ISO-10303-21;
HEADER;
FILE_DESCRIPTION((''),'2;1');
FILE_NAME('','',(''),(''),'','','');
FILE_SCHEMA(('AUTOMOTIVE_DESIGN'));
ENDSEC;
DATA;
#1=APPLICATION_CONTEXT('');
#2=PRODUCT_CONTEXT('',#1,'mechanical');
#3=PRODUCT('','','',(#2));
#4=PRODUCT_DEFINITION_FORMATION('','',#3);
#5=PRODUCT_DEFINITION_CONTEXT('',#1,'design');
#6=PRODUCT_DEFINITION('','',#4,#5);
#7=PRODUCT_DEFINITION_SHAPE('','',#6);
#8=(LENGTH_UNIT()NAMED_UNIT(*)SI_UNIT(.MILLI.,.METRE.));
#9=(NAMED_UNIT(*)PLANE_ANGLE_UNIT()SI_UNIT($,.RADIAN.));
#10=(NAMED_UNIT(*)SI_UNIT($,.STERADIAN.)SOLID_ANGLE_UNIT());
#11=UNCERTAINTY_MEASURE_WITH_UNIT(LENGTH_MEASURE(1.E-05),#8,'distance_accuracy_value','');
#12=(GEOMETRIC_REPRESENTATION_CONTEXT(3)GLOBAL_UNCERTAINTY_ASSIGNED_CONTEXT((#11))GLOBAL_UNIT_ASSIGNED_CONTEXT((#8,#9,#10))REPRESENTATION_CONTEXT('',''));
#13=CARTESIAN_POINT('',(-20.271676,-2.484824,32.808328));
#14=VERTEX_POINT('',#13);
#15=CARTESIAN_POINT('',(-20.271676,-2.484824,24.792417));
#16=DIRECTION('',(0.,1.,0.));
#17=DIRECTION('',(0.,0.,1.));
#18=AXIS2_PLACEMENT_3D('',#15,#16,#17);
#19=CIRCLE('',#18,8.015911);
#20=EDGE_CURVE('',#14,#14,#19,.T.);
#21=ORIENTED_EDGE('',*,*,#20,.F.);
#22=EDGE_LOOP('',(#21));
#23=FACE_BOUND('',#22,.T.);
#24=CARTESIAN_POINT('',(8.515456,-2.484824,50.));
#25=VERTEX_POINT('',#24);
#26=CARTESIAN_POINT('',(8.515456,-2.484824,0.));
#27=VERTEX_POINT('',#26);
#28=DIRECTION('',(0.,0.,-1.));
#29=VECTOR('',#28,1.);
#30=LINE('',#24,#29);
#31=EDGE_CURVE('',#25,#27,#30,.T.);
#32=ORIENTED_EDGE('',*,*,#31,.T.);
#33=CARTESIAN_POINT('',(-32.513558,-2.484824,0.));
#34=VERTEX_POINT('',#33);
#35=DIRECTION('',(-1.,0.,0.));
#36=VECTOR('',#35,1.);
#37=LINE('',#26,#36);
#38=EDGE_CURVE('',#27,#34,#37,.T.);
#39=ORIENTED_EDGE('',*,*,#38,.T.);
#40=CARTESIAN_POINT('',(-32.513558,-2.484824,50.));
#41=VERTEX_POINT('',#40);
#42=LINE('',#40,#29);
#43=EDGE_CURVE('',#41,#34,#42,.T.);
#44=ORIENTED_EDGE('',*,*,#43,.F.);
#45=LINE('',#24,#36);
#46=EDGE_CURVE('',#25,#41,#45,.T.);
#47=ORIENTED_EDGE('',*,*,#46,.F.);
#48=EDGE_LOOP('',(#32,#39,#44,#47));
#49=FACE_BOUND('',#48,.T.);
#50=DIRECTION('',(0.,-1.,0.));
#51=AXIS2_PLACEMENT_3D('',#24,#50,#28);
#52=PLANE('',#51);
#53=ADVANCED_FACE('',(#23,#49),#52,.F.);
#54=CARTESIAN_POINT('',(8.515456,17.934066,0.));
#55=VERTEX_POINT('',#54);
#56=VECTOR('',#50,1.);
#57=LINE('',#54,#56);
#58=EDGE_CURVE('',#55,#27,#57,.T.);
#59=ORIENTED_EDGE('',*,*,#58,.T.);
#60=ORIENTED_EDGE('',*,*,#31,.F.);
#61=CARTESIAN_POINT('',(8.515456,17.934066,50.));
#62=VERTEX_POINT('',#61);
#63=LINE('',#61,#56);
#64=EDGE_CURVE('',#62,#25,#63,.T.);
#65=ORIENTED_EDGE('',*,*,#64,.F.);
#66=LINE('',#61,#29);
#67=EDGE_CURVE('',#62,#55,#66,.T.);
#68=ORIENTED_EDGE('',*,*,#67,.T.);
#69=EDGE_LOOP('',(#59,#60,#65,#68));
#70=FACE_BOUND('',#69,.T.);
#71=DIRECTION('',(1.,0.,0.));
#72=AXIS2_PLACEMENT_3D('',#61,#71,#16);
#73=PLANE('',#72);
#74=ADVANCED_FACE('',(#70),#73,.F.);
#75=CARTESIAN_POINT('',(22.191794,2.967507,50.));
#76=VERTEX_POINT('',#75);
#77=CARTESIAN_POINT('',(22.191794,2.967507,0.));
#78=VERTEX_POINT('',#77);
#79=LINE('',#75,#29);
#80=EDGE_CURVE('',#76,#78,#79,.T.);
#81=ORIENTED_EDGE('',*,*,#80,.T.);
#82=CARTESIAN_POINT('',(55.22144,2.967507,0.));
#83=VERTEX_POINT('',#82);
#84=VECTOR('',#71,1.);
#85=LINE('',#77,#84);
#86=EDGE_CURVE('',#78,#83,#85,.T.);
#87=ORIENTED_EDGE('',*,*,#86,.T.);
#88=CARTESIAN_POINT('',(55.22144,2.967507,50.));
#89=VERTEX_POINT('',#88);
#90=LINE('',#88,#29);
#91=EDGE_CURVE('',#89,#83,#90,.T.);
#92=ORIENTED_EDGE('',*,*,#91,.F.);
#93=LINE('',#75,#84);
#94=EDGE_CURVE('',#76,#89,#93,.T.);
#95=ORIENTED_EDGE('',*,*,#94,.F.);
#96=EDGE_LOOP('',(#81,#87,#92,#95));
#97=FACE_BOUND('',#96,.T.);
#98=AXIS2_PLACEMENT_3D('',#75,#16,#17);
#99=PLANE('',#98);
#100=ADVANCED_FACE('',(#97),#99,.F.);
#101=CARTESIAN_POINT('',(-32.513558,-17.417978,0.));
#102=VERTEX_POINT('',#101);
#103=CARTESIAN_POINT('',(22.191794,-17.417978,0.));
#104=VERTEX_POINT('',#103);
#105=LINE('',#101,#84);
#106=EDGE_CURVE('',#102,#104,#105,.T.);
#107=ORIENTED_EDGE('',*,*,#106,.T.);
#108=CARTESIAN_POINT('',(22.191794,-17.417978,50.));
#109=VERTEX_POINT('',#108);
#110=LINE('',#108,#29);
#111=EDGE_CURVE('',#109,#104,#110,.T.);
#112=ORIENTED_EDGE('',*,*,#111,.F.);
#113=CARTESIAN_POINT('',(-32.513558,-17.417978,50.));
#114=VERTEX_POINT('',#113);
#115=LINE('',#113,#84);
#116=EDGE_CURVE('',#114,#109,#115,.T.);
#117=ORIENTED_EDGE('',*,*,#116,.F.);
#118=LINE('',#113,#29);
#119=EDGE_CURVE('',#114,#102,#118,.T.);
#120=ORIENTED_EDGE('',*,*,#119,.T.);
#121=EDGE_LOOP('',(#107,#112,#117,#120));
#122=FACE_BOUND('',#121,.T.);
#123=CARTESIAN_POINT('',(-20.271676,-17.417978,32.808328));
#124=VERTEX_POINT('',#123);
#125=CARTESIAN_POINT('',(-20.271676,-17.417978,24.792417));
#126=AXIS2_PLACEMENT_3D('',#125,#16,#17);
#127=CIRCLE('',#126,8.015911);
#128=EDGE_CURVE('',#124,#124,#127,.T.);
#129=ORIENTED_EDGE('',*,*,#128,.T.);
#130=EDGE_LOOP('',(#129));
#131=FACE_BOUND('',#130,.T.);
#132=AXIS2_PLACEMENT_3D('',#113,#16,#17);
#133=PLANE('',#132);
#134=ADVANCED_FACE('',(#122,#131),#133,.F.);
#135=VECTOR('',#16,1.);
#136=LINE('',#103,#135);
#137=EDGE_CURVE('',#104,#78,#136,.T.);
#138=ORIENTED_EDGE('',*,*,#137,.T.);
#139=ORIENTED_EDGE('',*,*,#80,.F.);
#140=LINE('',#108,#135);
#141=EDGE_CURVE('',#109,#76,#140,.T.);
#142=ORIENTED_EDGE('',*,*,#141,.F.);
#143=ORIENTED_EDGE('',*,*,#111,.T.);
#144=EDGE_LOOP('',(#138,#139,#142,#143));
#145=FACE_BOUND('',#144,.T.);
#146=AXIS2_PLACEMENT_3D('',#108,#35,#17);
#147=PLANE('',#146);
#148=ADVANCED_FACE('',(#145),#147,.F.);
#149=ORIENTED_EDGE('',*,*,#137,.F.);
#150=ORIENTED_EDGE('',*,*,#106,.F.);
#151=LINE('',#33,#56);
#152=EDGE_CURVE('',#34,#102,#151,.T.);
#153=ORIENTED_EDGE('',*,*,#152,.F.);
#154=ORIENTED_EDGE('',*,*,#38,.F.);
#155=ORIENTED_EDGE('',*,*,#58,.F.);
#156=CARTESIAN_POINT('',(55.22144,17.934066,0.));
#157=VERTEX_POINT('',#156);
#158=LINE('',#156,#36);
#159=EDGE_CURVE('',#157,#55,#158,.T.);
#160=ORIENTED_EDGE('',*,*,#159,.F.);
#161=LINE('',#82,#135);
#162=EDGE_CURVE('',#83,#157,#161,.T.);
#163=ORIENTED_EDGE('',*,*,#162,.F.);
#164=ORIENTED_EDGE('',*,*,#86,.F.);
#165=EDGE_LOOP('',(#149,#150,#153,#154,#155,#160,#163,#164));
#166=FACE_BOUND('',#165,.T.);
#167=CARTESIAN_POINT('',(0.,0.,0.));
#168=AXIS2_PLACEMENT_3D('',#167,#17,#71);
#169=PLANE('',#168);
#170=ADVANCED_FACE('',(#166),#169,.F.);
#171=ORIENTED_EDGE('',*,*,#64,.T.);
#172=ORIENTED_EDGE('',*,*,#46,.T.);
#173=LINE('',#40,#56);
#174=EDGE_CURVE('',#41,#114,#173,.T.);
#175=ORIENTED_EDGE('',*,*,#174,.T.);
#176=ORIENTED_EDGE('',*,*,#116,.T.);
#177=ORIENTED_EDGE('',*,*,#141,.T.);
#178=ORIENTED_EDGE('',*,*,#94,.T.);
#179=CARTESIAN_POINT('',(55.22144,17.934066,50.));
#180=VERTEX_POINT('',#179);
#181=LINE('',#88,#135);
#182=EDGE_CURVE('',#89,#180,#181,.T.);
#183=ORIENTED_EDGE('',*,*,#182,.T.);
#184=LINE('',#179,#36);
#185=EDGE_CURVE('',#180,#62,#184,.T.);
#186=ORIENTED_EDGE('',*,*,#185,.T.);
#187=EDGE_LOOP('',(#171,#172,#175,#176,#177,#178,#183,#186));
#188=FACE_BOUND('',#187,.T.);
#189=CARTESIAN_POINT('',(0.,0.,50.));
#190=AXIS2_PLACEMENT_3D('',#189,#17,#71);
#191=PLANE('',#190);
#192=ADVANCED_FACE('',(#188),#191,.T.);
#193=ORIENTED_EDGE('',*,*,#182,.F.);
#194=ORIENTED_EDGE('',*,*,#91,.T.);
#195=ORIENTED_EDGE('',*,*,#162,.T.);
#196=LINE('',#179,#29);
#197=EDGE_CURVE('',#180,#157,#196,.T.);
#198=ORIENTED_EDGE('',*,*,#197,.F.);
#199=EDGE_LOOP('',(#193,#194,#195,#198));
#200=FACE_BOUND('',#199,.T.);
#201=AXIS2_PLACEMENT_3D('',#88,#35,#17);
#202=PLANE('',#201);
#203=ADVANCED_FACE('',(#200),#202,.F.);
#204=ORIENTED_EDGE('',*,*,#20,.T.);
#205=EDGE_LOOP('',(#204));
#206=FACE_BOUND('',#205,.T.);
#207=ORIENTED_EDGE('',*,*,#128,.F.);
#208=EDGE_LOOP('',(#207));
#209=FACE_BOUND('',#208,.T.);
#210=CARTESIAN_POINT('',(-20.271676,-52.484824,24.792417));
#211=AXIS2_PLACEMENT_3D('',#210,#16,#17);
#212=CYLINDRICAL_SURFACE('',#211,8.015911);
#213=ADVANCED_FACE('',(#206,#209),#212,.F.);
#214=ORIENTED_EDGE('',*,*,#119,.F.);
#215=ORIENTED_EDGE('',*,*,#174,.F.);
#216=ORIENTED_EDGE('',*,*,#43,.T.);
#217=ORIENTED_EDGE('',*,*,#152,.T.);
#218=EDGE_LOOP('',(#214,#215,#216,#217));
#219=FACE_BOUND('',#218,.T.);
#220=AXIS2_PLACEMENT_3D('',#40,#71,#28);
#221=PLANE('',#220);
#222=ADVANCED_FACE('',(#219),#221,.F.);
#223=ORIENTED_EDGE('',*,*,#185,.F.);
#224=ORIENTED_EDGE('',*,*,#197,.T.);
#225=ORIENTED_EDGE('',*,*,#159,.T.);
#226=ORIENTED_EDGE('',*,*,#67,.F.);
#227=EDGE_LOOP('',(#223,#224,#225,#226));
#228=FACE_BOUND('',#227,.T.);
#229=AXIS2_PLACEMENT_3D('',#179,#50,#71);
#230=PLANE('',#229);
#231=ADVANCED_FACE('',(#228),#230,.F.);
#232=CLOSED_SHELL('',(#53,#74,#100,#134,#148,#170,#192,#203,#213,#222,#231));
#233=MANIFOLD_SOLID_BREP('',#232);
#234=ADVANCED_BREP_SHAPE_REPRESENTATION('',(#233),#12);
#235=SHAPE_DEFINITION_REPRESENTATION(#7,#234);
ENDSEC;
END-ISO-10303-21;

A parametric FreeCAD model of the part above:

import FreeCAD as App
import Part
import Sketcher
from FreeCAD import Vector
Q = App.Units.Quantity

doc = App.newDocument("Part")
body = doc.addObject("PartDesign::Body", "Body")

sketch1 = body.newObject("Sketcher::SketchObject", "Sketch")
sketch1.AttachmentSupport = (doc.getObject("XY_Plane"), [""])
sketch1.MapMode = "FlatFace"
sketch1.addGeometry([
    Part.LineSegment(Vector(-32.513558, -17.417978, 0), Vector(22.191794, -17.417978, 0)),
    Part.LineSegment(Vector(22.191794, -17.417978, 0), Vector(22.191794, 2.967507, 0)),
    Part.LineSegment(Vector(22.191794, 2.967507, 0), Vector(55.22144, 2.967507, 0)),
    Part.LineSegment(Vector(55.22144, 2.967507, 0), Vector(55.22144, 17.934066, 0)),
    Part.LineSegment(Vector(55.22144, 17.934066, 0), Vector(8.515456, 17.934066, 0)),
    Part.LineSegment(Vector(8.515456, 17.934066, 0), Vector(8.515456, -2.484824, 0)),
    Part.LineSegment(Vector(8.515456, -2.484824, 0), Vector(-32.513558, -2.484824, 0)),
    Part.LineSegment(Vector(-32.513558, -2.484824, 0), Vector(-32.513558, -17.417978, 0)),
], False)
sketch1.addConstraint([
    Sketcher.Constraint("Coincident", 0, 2, 1, 1),
    Sketcher.Constraint("Coincident", 1, 2, 2, 1),
    Sketcher.Constraint("Coincident", 2, 2, 3, 1),
    Sketcher.Constraint("Coincident", 3, 2, 4, 1),
    Sketcher.Constraint("Coincident", 4, 2, 5, 1),
    Sketcher.Constraint("Coincident", 5, 2, 6, 1),
    Sketcher.Constraint("Coincident", 6, 2, 7, 1),
    Sketcher.Constraint("Coincident", 7, 2, 0, 1),
    Sketcher.Constraint("Horizontal", 0),
    Sketcher.Constraint("Vertical", 1),
    Sketcher.Constraint("Horizontal", 2),
    Sketcher.Constraint("Vertical", 3),
    Sketcher.Constraint("Horizontal", 4),
    Sketcher.Constraint("Vertical", 5),
    Sketcher.Constraint("Horizontal", 6),
    Sketcher.Constraint("Vertical", 7),
    Sketcher.Constraint("DistanceX", 6, 2, 2, 2, Q("87.734999 mm")),
    Sketcher.Constraint("DistanceY", 3, 1, 3, 2, Q("14.966559 mm")),
    Sketcher.Constraint("DistanceY", 5, 2, 5, 1, Q("20.41889 mm")),
    Sketcher.Constraint("DistanceX", 0, 1, 0, 2, Q("54.705352 mm")),
    Sketcher.Constraint("DistanceX", 4, 2, 4, 1, Q("46.705985 mm")),
    Sketcher.Constraint("DistanceY", 1, 1, 1, 2, Q("20.385485 mm")),
    Sketcher.Constraint("DistanceX", -1, 1, 2, 2, Q("55.22144 mm")),
    Sketcher.Constraint("DistanceY", 0, 2, -1, 1, Q("17.417978 mm")),
])
pad1 = body.newObject("PartDesign::Pad", "Pad")
pad1.Profile = sketch1
pad1.Length = 50

sketch2 = body.newObject("Sketcher::SketchObject", "Sketch001")
sketch2.AttachmentSupport = (doc.getObject("XZ_Plane"), [""])
sketch2.MapMode = "FlatFace"
sketch2.AttachmentOffset = App.Placement(Vector(0, 0, 2.484824), App.Rotation())
sketch2.addGeometry(Part.Circle(Vector(-20.271676, 24.792417, 0), Vector(0, 0, 1), 8.015911), False)
sketch2.addConstraint([
    Sketcher.Constraint("Diameter", 0, Q("16.031821 mm")),
    Sketcher.Constraint("DistanceX", 0, 3, -1, 1, Q("20.271676 mm")),
    Sketcher.Constraint("DistanceY", -1, 1, 0, 3, Q("24.792417 mm")),
])
pocket1 = body.newObject("PartDesign::Pocket", "Pocket")
pocket1.Profile = sketch2
pocket1.Length = 50
pocket1.Reversed = True

doc.recompute()
